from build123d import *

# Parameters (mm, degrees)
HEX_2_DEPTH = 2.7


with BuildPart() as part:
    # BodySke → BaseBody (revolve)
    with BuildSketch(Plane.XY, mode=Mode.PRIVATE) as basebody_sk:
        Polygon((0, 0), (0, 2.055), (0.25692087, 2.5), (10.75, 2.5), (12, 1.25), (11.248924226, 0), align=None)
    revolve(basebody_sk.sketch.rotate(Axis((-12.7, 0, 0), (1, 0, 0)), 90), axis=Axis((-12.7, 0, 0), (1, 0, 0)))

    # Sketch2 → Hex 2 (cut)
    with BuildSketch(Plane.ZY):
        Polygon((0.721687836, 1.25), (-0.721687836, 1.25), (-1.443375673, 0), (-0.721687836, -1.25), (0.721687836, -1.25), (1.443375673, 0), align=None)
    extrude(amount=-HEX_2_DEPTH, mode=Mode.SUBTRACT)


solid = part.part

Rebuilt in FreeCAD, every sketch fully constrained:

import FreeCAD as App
import Part
import Sketcher
from FreeCAD import Vector
Q = App.Units.Quantity

doc = App.newDocument("Part")
body = doc.addObject("PartDesign::Body", "Body")

# Sketch on XY plane
sketch1 = doc.addObject("Sketcher::SketchObject", "Sketch")
body.addObject(sketch1)
sketch1.AttachmentSupport = (doc.XY_Plane, [""])
sketch1.MapMode = "FlatFace"
sketch1.addGeometry(Part.LineSegment(Vector(0, 2.1, 0), Vector(0, 0, 0)), False)
sketch1.addGeometry(Part.LineSegment(Vector(0, 0, 0), Vector(11.2, 0, 0)), False)
sketch1.addGeometry(Part.LineSegment(Vector(11.2, 0, 0), Vector(12, 1.2, 0)), False)
sketch1.addGeometry(Part.LineSegment(Vector(12, 1.2, 0), Vector(10.8, 2.5, 0)), False)
sketch1.addGeometry(Part.LineSegment(Vector(10.8, 2.5, 0), Vector(0.3, 2.5, 0)), False)
sketch1.addGeometry(Part.LineSegment(Vector(0.3, 2.5, 0), Vector(0, 2.1, 0)), False)
sketch1.addConstraint(Sketcher.Constraint("Coincident", 0, 2, 1, 1))
sketch1.addConstraint(Sketcher.Constraint("Coincident", 1, 2, 2, 1))
sketch1.addConstraint(Sketcher.Constraint("Coincident", 2, 2, 3, 1))
sketch1.addConstraint(Sketcher.Constraint("Coincident", 3, 2, 4, 1))
sketch1.addConstraint(Sketcher.Constraint("Coincident", 4, 2, 5, 1))
sketch1.addConstraint(Sketcher.Constraint("Coincident", 5, 2, 0, 1))
sketch1.addConstraint(Sketcher.Constraint("Vertical", 0))
sketch1.addConstraint(Sketcher.Constraint("Horizontal", 1))
sketch1.addConstraint(Sketcher.Constraint("Horizontal", 4))
sketch1.addConstraint(Sketcher.Constraint("Coincident", 0, 2, -1, 1))
sketch1.addConstraint(Sketcher.Constraint("Angle", 2, Q("59 deg")))
sketch1.addConstraint(Sketcher.Constraint("Angle", 3, Q("135 deg")))
sketch1.addConstraint(Sketcher.Constraint("Angle", 5, Q("-120 deg")))
sketch1.addConstraint(Sketcher.Constraint("DistanceX", -1, 1, 2, 2, 12.0))
sketch1.addConstraint(Sketcher.Constraint("DistanceY", -1, 1, 3, 2, 2.5))
sketch1.addConstraint(Sketcher.Constraint("DistanceY", 0, 2, 0, 1, 2.055))
sketch1.addConstraint(Sketcher.Constraint("DistanceY", -1, 1, 2, 2, 1.25))
revolution = doc.addObject("PartDesign::Revolution", "Revolution")
body.addObject(revolution)
revolution.Profile = sketch1
revolution.ReferenceAxis = (sketch1, ["H_Axis"])
revolution.Angle = 360

# Sketch on YZ plane
sketch2 = doc.addObject("Sketcher::SketchObject", "Sketch001")
body.addObject(sketch2)
sketch2.AttachmentSupport = (doc.YZ_Plane, [""])
sketch2.MapMode = "FlatFace"
sketch2.addGeometry(Part.LineSegment(Vector(1.2, 0.7, 0), Vector(1.2, -0.7, 0)), False)
sketch2.addGeometry(Part.LineSegment(Vector(1.2, -0.7, 0), Vector(0, -1.4, 0)), False)
sketch2.addGeometry(Part.LineSegment(Vector(0, -1.4, 0), Vector(-1.2, -0.7, 0)), False)
sketch2.addGeometry(Part.LineSegment(Vector(-1.2, -0.7, 0), Vector(-1.2, 0.7, 0)), False)
sketch2.addGeometry(Part.LineSegment(Vector(-1.2, 0.7, 0), Vector(0, 1.4, 0)), False)
sketch2.addGeometry(Part.LineSegment(Vector(0, 1.4, 0), Vector(1.2, 0.7, 0)), False)
sketch2.addConstraint(Sketcher.Constraint("Coincident", 0, 2, 1, 1))
sketch2.addConstraint(Sketcher.Constraint("Coincident", 1, 2, 2, 1))
sketch2.addConstraint(Sketcher.Constraint("Coincident", 2, 2, 3, 1))
sketch2.addConstraint(Sketcher.Constraint("Coincident", 3, 2, 4, 1))
sketch2.addConstraint(Sketcher.Constraint("Coincident", 4, 2, 5, 1))
sketch2.addConstraint(Sketcher.Constraint("Coincident", 5, 2, 0, 1))
sketch2.addConstraint(Sketcher.Constraint("Vertical", 0))
sketch2.addConstraint(Sketcher.Constraint("Vertical", 3))
sketch2.addConstraint(Sketcher.Constraint("Symmetric", 0, 2, 3, 2, -1, 1))
sketch2.addConstraint(Sketcher.Constraint("Symmetric", 1, 2, 4, 2, -1, 1))
sketch2.addConstraint(Sketcher.Constraint("PointOnObject", 1, 2, -2))
sketch2.addConstraint(Sketcher.Constraint("Parallel", 2, 5))
sketch2.addConstraint(Sketcher.Constraint("Horizontal", 0, 2, 2, 2))
sketch2.addConstraint(Sketcher.Constraint("Angle", 1, Q("-150 deg")))
sketch2.addConstraint(Sketcher.Constraint("DistanceX", 2, 2, 0, 2, 2.5))
sketch2.addConstraint(Sketcher.Constraint("DistanceY", 0, 2, 0, 1, 1.443376))
pocket1 = doc.addObject("PartDesign::Pocket", "Pocket")
body.addObject(pocket1)
pocket1.Profile = sketch2
pocket1.Length = 2.7
pocket1.Reversed = True

doc.recompute()
